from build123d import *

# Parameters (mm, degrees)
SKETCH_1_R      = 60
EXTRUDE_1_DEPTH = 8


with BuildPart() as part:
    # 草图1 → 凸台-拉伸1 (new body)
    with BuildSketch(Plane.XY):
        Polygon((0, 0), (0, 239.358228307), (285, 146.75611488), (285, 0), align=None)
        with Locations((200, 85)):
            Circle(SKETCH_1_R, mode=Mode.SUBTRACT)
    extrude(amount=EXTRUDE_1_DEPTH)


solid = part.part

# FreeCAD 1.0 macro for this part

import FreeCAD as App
import Part
import Sketcher
Q = App.Units.Quantity

doc = App.newDocument("Part")
params = doc.addObject("Spreadsheet::Sheet", "Params")
for row, (alias, value) in enumerate([
    ("sketch1_diameter", "120 mm"),
    ("sketch1_width", "285 mm"),
    ("pad1_length", "8 mm"),
], start=1):
    params.set(f"A{row}", alias)
    params.set(f"B{row}", "=" + value)
    params.setAlias(f"B{row}", alias)

body = doc.addObject("PartDesign::Body", "Body")

sketch1 = body.newObject("Sketcher::SketchObject", "Sketch")
sketch1.AttachmentSupport = (doc.getObject("XY_Plane"), [""])
sketch1.MapMode = "FlatFace"
sketch1.addGeometry([
    Part.LineSegment(App.Vector(0, 239.358228, 0), App.Vector(0, 0, 0)),
    Part.LineSegment(App.Vector(0, 0, 0), App.Vector(285, 0, 0)),
    Part.LineSegment(App.Vector(285, 0, 0), App.Vector(285, 146.756115, 0)),
    Part.LineSegment(App.Vector(285, 146.756115, 0), App.Vector(0, 239.358228, 0)),
    Part.Circle(App.Vector(200, 85, 0), App.Vector(0, 0, 1), 60),
], False)
sketch1.addConstraint([
    Sketcher.Constraint("Coincident", 0, 2, 1, 1),
    Sketcher.Constraint("Coincident", 1, 2, 2, 1),
    Sketcher.Constraint("Coincident", 2, 2, 3, 1),
    Sketcher.Constraint("Coincident", 3, 2, 0, 1),
    Sketcher.Constraint("Vertical", 0),
    Sketcher.Constraint("Horizontal", 1),
    Sketcher.Constraint("Vertical", 2),
    Sketcher.Constraint("Coincident", 0, 2, -1, 1),
    Sketcher.Constraint("Diameter", 4, Q("120 mm")),
    Sketcher.Constraint("DistanceX", 1, 1, 1, 2, Q("285 mm")),
    Sketcher.Constraint("Angle", 3, Q("162 deg")),
    Sketcher.Constraint("DistanceX", -1, 1, 4, 3, Q("200 mm")),
    Sketcher.Constraint("DistanceY", -1, 1, 4, 3, Q("85 mm")),
    Sketcher.Constraint("DistanceY", 0, 2, 0, 1, Q("239.358228 mm")),
])
sketch1.setExpression("Constraints[8]", "Params.sketch1_diameter")
sketch1.setExpression("Constraints[9]", "Params.sketch1_width")
pad1 = body.newObject("PartDesign::Pad", "Pad")
pad1.Profile = sketch1
pad1.setExpression("Length", "Params.pad1_length")

doc.recompute()
